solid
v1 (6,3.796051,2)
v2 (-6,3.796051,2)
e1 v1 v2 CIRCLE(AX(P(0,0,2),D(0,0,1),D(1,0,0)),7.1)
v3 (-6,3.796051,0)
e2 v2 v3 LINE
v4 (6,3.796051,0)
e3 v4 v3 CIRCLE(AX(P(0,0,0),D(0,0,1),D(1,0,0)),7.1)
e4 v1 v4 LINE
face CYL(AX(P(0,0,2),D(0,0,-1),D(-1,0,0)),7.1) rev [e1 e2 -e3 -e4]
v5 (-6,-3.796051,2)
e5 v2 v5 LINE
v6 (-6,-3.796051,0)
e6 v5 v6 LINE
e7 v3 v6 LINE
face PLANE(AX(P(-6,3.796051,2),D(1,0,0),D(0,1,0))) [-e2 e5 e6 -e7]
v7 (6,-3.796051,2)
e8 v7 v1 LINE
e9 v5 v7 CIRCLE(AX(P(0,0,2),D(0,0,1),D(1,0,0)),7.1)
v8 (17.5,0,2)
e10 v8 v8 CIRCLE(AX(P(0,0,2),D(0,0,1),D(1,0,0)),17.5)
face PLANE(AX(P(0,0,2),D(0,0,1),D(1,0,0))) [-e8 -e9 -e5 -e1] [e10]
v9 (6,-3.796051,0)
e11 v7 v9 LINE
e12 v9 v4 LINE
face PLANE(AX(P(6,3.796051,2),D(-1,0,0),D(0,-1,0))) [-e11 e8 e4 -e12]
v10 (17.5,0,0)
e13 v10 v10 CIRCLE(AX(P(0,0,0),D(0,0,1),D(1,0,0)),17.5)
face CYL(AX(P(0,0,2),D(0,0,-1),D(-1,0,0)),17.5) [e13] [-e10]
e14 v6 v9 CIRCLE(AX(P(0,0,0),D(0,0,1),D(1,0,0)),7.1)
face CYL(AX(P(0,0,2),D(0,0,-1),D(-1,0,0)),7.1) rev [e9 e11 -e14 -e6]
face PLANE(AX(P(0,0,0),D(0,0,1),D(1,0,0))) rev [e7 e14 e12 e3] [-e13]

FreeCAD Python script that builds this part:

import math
import FreeCAD as App
import Part
import Sketcher
from FreeCAD import Vector

doc = App.newDocument("Part")
body = doc.addObject("PartDesign::Body", "Body")

sketch1 = doc.addObject("Sketcher::SketchObject", "Sketch")
body.addObject(sketch1)
sketch1.AttachmentSupport = (doc.XY_Plane, [""])
sketch1.MapMode = "FlatFace"
sketch1.addGeometry([
    Part.Circle(Vector(0, 0, 0), Vector(0, 0, 1), 18),
    Part.LineSegment(Vector(-6, -4, 0), Vector(-6, 4, 0)),
    Part.ArcOfCircle(Part.Circle(Vector(0, 0, 0), Vector(0, 0, 1), 7), math.radians(32), math.radians(148)),
    Part.LineSegment(Vector(6, 4, 0), Vector(6, -4, 0)),
    Part.ArcOfCircle(Part.Circle(Vector(0, 0, 0), Vector(0, 0, 1), 7), math.radians(-148), math.radians(-32)),
], False)
sketch1.addConstraint([
    Sketcher.Constraint("Coincident", 1, 2, 2, 2),
    Sketcher.Constraint("Coincident", 2, 1, 3, 1),
    Sketcher.Constraint("Coincident", 3, 2, 4, 2),
    Sketcher.Constraint("Coincident", 4, 1, 1, 1),
    Sketcher.Constraint("Vertical", 1),
    Sketcher.Constraint("Vertical", 3),
    Sketcher.Constraint("Coincident", 0, 3, -1, 1),
    Sketcher.Constraint("Coincident", 2, 3, -1, 1),
    Sketcher.Constraint("Coincident", 4, 3, -1, 1),
    Sketcher.Constraint("Equal", 2, 4),
    Sketcher.Constraint("Horizontal", 1, 2, 2, 1),
    Sketcher.Constraint("Diameter", 0, 35.0),
    Sketcher.Constraint("Radius", 2, 7.1),
    Sketcher.Constraint("DistanceX", 1, 2, -1, 1, 6.0),
])
pad1 = doc.addObject("PartDesign::Pad", "Pad")
body.addObject(pad1)
pad1.Profile = sketch1
pad1.Length = 2

doc.recompute()
